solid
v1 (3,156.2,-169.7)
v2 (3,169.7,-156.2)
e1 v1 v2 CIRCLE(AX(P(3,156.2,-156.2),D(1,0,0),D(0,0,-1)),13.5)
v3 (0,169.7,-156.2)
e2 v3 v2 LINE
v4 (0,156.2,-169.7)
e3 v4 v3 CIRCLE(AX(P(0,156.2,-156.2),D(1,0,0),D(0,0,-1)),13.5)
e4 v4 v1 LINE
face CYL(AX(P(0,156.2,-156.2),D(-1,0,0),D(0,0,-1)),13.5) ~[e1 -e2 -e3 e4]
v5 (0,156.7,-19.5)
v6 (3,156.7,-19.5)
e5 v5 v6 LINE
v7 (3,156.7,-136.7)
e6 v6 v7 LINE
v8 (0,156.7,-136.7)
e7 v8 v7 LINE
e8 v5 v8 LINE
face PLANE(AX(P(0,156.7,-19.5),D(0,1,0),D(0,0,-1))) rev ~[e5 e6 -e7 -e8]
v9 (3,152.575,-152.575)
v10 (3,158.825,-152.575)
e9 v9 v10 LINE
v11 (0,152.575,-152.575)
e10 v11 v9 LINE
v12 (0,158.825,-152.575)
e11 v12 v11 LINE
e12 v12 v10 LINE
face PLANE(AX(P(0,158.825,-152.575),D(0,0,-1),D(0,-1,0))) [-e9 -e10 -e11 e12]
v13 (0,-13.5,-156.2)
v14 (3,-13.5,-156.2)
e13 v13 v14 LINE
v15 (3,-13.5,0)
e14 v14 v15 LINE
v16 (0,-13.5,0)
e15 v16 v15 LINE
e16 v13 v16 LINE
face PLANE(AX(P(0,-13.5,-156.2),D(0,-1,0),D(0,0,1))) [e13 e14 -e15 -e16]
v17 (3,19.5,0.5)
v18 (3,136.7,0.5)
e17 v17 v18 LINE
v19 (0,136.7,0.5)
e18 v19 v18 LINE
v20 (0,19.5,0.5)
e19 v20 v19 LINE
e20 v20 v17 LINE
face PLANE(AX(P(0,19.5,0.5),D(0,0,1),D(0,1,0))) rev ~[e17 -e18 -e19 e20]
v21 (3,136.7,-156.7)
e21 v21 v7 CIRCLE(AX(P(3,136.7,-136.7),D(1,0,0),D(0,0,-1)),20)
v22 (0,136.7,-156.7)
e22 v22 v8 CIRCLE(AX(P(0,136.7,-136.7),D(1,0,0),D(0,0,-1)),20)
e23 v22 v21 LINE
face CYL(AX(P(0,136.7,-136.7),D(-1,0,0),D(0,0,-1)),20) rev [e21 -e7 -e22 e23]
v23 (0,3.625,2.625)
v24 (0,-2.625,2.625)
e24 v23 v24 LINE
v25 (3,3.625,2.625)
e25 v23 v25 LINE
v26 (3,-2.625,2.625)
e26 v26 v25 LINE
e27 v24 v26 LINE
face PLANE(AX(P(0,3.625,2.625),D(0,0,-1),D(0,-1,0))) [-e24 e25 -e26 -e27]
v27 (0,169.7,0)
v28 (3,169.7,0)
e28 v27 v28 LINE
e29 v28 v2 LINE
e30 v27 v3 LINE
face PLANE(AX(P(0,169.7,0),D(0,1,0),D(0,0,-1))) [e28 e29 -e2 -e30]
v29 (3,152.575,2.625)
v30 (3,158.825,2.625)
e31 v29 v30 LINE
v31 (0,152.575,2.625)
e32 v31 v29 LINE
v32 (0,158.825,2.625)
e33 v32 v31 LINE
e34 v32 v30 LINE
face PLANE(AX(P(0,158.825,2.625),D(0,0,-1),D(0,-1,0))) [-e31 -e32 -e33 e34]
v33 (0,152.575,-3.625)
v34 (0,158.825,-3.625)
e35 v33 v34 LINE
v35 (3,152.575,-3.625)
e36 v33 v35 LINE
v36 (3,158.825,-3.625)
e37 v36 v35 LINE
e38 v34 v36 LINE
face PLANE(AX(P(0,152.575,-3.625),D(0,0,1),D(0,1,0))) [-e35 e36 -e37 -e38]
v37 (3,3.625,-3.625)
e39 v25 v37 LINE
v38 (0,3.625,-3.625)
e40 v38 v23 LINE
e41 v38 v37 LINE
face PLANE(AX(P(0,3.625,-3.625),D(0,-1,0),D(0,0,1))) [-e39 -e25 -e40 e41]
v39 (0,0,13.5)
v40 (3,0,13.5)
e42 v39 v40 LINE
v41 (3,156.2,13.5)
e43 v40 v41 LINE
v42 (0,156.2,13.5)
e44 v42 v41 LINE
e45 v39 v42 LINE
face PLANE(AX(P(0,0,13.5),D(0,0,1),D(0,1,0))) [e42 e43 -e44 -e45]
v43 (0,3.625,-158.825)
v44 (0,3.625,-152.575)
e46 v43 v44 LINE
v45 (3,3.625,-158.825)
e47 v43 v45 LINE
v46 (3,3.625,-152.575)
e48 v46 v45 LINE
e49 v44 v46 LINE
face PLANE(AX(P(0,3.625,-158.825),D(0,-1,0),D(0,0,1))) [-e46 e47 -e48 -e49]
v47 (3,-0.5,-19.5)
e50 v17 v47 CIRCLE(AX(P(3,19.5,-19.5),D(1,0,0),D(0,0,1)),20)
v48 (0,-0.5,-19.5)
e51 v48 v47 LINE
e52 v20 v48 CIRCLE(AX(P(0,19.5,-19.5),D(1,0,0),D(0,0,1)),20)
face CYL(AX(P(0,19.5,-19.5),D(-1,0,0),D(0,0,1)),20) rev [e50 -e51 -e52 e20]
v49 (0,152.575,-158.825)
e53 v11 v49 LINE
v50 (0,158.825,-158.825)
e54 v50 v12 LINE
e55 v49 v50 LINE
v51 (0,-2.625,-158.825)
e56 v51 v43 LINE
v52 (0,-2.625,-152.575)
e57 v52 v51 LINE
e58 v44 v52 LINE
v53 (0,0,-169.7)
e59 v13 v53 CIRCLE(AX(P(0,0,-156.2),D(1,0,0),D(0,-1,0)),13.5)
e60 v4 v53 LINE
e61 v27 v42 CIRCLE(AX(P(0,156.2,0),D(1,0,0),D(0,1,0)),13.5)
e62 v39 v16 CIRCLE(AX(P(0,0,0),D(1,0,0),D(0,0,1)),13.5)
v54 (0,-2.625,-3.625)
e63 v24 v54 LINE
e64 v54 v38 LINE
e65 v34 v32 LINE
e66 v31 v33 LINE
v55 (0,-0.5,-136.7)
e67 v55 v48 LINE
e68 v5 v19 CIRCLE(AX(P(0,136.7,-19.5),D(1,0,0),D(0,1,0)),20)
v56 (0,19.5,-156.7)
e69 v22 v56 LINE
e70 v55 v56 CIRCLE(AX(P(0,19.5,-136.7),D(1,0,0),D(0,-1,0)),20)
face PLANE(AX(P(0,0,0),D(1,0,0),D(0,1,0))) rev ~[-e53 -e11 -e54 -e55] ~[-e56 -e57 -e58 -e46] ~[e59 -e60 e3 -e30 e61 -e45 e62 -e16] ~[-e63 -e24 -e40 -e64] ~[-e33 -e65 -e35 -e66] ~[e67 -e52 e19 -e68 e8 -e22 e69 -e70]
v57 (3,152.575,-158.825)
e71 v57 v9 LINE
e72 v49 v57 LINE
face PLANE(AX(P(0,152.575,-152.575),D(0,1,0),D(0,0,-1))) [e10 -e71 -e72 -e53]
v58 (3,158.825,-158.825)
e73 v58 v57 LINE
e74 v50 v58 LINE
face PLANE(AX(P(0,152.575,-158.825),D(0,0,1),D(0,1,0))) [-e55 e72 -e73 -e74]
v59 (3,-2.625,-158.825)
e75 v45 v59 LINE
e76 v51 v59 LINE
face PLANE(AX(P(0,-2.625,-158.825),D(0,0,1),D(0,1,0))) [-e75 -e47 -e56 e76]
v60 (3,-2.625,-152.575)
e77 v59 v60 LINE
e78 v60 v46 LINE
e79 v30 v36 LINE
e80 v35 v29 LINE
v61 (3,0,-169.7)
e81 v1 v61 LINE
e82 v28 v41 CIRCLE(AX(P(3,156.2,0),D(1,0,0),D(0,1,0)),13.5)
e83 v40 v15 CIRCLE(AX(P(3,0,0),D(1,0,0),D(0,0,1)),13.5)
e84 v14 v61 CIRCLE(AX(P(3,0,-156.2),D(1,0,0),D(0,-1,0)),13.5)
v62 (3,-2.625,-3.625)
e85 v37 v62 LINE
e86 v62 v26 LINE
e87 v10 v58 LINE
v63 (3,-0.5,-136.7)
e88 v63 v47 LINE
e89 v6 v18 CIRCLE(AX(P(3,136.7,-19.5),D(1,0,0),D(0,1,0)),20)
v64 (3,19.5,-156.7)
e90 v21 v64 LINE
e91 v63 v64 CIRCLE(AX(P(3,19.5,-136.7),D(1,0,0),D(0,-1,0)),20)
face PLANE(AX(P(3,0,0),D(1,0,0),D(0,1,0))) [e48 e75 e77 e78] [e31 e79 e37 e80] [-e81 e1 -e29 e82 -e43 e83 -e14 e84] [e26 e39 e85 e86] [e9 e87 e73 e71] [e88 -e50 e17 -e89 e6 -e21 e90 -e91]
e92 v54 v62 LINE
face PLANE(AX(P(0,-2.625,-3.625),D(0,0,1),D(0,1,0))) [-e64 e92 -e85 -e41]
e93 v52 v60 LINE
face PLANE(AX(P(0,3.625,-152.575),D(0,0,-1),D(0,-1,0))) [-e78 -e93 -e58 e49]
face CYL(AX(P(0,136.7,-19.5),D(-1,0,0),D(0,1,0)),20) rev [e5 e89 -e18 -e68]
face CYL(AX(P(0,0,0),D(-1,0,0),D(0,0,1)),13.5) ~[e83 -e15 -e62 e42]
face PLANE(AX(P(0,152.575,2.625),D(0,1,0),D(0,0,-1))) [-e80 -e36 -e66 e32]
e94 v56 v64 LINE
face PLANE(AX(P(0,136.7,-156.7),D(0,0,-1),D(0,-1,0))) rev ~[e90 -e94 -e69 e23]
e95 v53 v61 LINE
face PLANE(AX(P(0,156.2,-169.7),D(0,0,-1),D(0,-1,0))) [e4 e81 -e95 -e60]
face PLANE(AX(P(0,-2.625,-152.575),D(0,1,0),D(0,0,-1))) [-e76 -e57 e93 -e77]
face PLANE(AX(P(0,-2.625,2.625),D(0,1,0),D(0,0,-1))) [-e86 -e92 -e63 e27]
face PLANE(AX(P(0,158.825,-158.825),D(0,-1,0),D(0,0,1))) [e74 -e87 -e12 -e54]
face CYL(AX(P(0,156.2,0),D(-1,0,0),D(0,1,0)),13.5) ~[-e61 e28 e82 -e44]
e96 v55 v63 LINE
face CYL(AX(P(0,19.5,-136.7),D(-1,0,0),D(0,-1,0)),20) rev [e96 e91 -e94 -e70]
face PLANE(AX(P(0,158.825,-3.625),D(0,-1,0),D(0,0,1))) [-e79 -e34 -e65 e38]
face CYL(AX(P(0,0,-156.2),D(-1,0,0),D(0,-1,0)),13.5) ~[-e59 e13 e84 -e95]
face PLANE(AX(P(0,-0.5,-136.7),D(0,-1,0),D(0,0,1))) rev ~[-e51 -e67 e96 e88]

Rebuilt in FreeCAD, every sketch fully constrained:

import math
import FreeCAD as App
import Part
import Sketcher

V = App.Vector


def add_polygon(sketch, points):
    """Adds a closed chain of lines whose ends are joined by coincident constraints."""
    first, n = sketch.GeometryCount, len(points)
    for a, b in zip(points, points[1:] + points[:1]):
        sketch.addGeometry(Part.LineSegment(App.Vector(*a, 0), App.Vector(*b, 0)), False)
    for i in range(n):
        sketch.addConstraint(Sketcher.Constraint("Coincident", first + i, 2, first + (i + 1) % n, 1))

doc = App.newDocument("Part")
params = doc.addObject("Spreadsheet::Sheet", "Params")
for row, (alias, value) in enumerate([
    ("sketch1_radius", "20 mm"),
    ("sketch1_radius2", "13.5 mm"),
    ("sketch1_width", "156.2 mm"),
    ("pad1_length", "3 mm"),
    ("sketch2_width", "6.25 mm"),
    ("pocket1_length", "10 mm"),
], start=1):
    params.set(f"A{row}", alias)
    params.set(f"B{row}", "=" + value)
    params.setAlias(f"B{row}", alias)

body = doc.addObject("PartDesign::Body", "Body")

# Sketch on YZ plane
sketch1 = body.newObject("Sketcher::SketchObject", "Sketch")
sketch1.AttachmentSupport = (doc.getObject("YZ_Plane"), [""])
sketch1.MapMode = "FlatFace"
sketch1.addGeometry(Part.LineSegment(V(156, 14, 0), V(0, 14, 0)), False)
sketch1.addGeometry(Part.ArcOfCircle(Part.Circle(V(0, 0, 0), V(0, 0, 1), 14), math.radians(90), math.radians(180)), False)
sketch1.addGeometry(Part.LineSegment(V(-14, 0, 0), V(-14, -156, 0)), False)
sketch1.addGeometry(Part.ArcOfCircle(Part.Circle(V(0, -156, 0), V(0, 0, 1), 14), math.radians(180), math.radians(270)), False)
sketch1.addGeometry(Part.LineSegment(V(0, -170, 0), V(156, -170, 0)), False)
sketch1.addGeometry(Part.ArcOfCircle(Part.Circle(V(156, -156, 0), V(0, 0, 1), 14), math.radians(-90), math.radians(0)), False)
sketch1.addGeometry(Part.LineSegment(V(170, -156, 0), V(170, 0, 0)), False)
sketch1.addGeometry(Part.ArcOfCircle(Part.Circle(V(156, 0, 0), V(0, 0, 1), 14), math.radians(0), math.radians(90)), False)
sketch1.addGeometry(Part.ArcOfCircle(Part.Circle(V(20, -20, 0), V(0, 0, 1), 20), math.radians(90), math.radians(180)), False)
sketch1.addGeometry(Part.LineSegment(V(20, 0, 0), V(137, 0, 0)), False)
sketch1.addGeometry(Part.ArcOfCircle(Part.Circle(V(137, -20, 0), V(0, 0, 1), 20), math.radians(0), math.radians(90)), False)
sketch1.addGeometry(Part.LineSegment(V(157, -20, 0), V(157, -137, 0)), False)
sketch1.addGeometry(Part.ArcOfCircle(Part.Circle(V(137, -137, 0), V(0, 0, 1), 20), math.radians(-90), math.radians(0)), False)
sketch1.addGeometry(Part.LineSegment(V(137, -157, 0), V(20, -157, 0)), False)
sketch1.addGeometry(Part.ArcOfCircle(Part.Circle(V(20, -137, 0), V(0, 0, 1), 20), math.radians(180), math.radians(270)), False)
sketch1.addGeometry(Part.LineSegment(V(0, -137, 0), V(0, -20, 0)), False)
sketch1.addConstraint(Sketcher.Constraint("Tangent", 0, 2, 1, 1))
sketch1.addConstraint(Sketcher.Constraint("Tangent", 1, 2, 2, 1))
sketch1.addConstraint(Sketcher.Constraint("Tangent", 2, 2, 3, 1))
sketch1.addConstraint(Sketcher.Constraint("Tangent", 3, 2, 4, 1))
sketch1.addConstraint(Sketcher.Constraint("Tangent", 4, 2, 5, 1))
sketch1.addConstraint(Sketcher.Constraint("Tangent", 5, 2, 6, 1))
sketch1.addConstraint(Sketcher.Constraint("Tangent", 6, 2, 7, 1))
sketch1.addConstraint(Sketcher.Constraint("Tangent", 7, 2, 0, 1))
sketch1.addConstraint(Sketcher.Constraint("Tangent", 8, 1, 9, 1))
sketch1.addConstraint(Sketcher.Constraint("Tangent", 9, 2, 10, 2))
sketch1.addConstraint(Sketcher.Constraint("Tangent", 10, 1, 11, 1))
sketch1.addConstraint(Sketcher.Constraint("Tangent", 11, 2, 12, 2))
sketch1.addConstraint(Sketcher.Constraint("Tangent", 12, 1, 13, 1))
sketch1.addConstraint(Sketcher.Constraint("Tangent", 13, 2, 14, 2))
sketch1.addConstraint(Sketcher.Constraint("Tangent", 14, 1, 15, 1))
sketch1.addConstraint(Sketcher.Constraint("Tangent", 15, 2, 8, 2))
sketch1.addConstraint(Sketcher.Constraint("Horizontal", 0))
sketch1.addConstraint(Sketcher.Constraint("Vertical", 2))
sketch1.addConstraint(Sketcher.Constraint("Horizontal", 4))
sketch1.addConstraint(Sketcher.Constraint("Vertical", 6))
sketch1.addConstraint(Sketcher.Constraint("Horizontal", 9))
sketch1.addConstraint(Sketcher.Constraint("Vertical", 11))
sketch1.addConstraint(Sketcher.Constraint("Horizontal", 13))
sketch1.addConstraint(Sketcher.Constraint("Vertical", 15))
sketch1.addConstraint(Sketcher.Constraint("Coincident", 1, 3, -1, 1))
sketch1.addConstraint(Sketcher.Constraint("Equal", 1, 3))
sketch1.addConstraint(Sketcher.Constraint("Equal", 3, 5))
sketch1.addConstraint(Sketcher.Constraint("Equal", 5, 7))
sketch1.addConstraint(Sketcher.Constraint("Equal", 8, 10))
sketch1.addConstraint(Sketcher.Constraint("Equal", 10, 12))
sketch1.addConstraint(Sketcher.Constraint("Equal", 12, 14))
sketch1.addConstraint(Sketcher.Constraint("Equal", 4, 2))
sketch1.addConstraint(Sketcher.Constraint("Equal", 13, 11))
sketch1.addConstraint(Sketcher.Constraint("Radius", 8, 20.0))
sketch1.addConstraint(Sketcher.Constraint("Radius", 1, 13.5))
sketch1.addConstraint(Sketcher.Constraint("DistanceY", 8, 1, 0, 2, 13.0))
sketch1.addConstraint(Sketcher.Constraint("DistanceX", 10, 1, 6, 2, 13.0))
sketch1.addConstraint(Sketcher.Constraint("DistanceY", 4, 2, 12, 1, 13.0))
sketch1.addConstraint(Sketcher.Constraint("DistanceX", 0, 2, 0, 1, 156.2))
sketch1.setExpression("Constraints[33]", "Params.sketch1_radius")
sketch1.setExpression("Constraints[34]", "Params.sketch1_radius2")
sketch1.setExpression("Constraints[38]", "Params.sketch1_width")
pad1 = body.newObject("PartDesign::Pad", "Pad")
pad1.Profile = sketch1
pad1.setExpression("Length", "Params.pad1_length")

# Sketch on YZ plane
sketch2 = body.newObject("Sketcher::SketchObject", "Sketch001")
sketch2.AttachmentSupport = (doc.getObject("YZ_Plane"), [""])
sketch2.MapMode = "FlatFace"
add_polygon(sketch2, [(153, -4), (153, 3), (159, 3), (159, -4)])  # lines 0-3
add_polygon(sketch2, [(4, 3), (4, -4), (-3, -4), (-3, 3)])  # lines 4-7
add_polygon(sketch2, [(4, -153), (4, -159), (-3, -159), (-3, -153)])  # lines 8-11
add_polygon(sketch2, [(153, -159), (153, -153), (159, -153), (159, -159)])  # lines 12-15
sketch2.addConstraint(Sketcher.Constraint("Vertical", 0))
sketch2.addConstraint(Sketcher.Constraint("Horizontal", 1))
sketch2.addConstraint(Sketcher.Constraint("Vertical", 2))
sketch2.addConstraint(Sketcher.Constraint("Horizontal", 3))
sketch2.addConstraint(Sketcher.Constraint("Vertical", 4))
sketch2.addConstraint(Sketcher.Constraint("Horizontal", 5))
sketch2.addConstraint(Sketcher.Constraint("Vertical", 6))
sketch2.addConstraint(Sketcher.Constraint("Horizontal", 7))
sketch2.addConstraint(Sketcher.Constraint("Vertical", 8))
sketch2.addConstraint(Sketcher.Constraint("Horizontal", 9))
sketch2.addConstraint(Sketcher.Constraint("Vertical", 10))
sketch2.addConstraint(Sketcher.Constraint("Horizontal", 11))
sketch2.addConstraint(Sketcher.Constraint("Vertical", 12))
sketch2.addConstraint(Sketcher.Constraint("Horizontal", 13))
sketch2.addConstraint(Sketcher.Constraint("Vertical", 14))
sketch2.addConstraint(Sketcher.Constraint("Horizontal", 15))
sketch2.addConstraint(Sketcher.Constraint("Horizontal", 3, 2, 4, 2))
sketch2.addConstraint(Sketcher.Constraint("Horizontal", 1, 2, 6, 2))
sketch2.addConstraint(Sketcher.Constraint("Horizontal", 11, 2, 12, 2))
sketch2.addConstraint(Sketcher.Constraint("Horizontal", 9, 2, 14, 2))
sketch2.addConstraint(Sketcher.Constraint("Vertical", 7, 2, 8, 2))
sketch2.addConstraint(Sketcher.Constraint("Vertical", 6, 2, 9, 2))
sketch2.addConstraint(Sketcher.Constraint("Vertical", 3, 2, 12, 2))
sketch2.addConstraint(Sketcher.Constraint("Vertical", 2, 2, 13, 2))
sketch2.addConstraint(Sketcher.Constraint("Equal", 3, 5))
sketch2.addConstraint(Sketcher.Constraint("Equal", 15, 0))
sketch2.addConstraint(Sketcher.Constraint("Equal", 6, 8))
sketch2.addConstraint(Sketcher.Constraint("DistanceX", 1, 1, 1, 2, 6.25))
sketch2.addConstraint(Sketcher.Constraint("DistanceX", 4, 2, 2, 2, 155.2))
sketch2.addConstraint(Sketcher.Constraint("DistanceY", 8, 2, 4, 2, 155.2))
sketch2.addConstraint(Sketcher.Constraint("DistanceX", -1, 1, 0, 2, 152.575))
sketch2.addConstraint(Sketcher.Constraint("DistanceY", -1, 1, 0, 2, 2.625))
sketch2.setExpression("Constraints[43]", "Params.sketch2_width")
pocket1 = body.newObject("PartDesign::Pocket", "Pocket")
pocket1.Profile = sketch2
pocket1.setExpression("Length", "Params.pocket1_length")
pocket1.Reversed = True

doc.recompute()
